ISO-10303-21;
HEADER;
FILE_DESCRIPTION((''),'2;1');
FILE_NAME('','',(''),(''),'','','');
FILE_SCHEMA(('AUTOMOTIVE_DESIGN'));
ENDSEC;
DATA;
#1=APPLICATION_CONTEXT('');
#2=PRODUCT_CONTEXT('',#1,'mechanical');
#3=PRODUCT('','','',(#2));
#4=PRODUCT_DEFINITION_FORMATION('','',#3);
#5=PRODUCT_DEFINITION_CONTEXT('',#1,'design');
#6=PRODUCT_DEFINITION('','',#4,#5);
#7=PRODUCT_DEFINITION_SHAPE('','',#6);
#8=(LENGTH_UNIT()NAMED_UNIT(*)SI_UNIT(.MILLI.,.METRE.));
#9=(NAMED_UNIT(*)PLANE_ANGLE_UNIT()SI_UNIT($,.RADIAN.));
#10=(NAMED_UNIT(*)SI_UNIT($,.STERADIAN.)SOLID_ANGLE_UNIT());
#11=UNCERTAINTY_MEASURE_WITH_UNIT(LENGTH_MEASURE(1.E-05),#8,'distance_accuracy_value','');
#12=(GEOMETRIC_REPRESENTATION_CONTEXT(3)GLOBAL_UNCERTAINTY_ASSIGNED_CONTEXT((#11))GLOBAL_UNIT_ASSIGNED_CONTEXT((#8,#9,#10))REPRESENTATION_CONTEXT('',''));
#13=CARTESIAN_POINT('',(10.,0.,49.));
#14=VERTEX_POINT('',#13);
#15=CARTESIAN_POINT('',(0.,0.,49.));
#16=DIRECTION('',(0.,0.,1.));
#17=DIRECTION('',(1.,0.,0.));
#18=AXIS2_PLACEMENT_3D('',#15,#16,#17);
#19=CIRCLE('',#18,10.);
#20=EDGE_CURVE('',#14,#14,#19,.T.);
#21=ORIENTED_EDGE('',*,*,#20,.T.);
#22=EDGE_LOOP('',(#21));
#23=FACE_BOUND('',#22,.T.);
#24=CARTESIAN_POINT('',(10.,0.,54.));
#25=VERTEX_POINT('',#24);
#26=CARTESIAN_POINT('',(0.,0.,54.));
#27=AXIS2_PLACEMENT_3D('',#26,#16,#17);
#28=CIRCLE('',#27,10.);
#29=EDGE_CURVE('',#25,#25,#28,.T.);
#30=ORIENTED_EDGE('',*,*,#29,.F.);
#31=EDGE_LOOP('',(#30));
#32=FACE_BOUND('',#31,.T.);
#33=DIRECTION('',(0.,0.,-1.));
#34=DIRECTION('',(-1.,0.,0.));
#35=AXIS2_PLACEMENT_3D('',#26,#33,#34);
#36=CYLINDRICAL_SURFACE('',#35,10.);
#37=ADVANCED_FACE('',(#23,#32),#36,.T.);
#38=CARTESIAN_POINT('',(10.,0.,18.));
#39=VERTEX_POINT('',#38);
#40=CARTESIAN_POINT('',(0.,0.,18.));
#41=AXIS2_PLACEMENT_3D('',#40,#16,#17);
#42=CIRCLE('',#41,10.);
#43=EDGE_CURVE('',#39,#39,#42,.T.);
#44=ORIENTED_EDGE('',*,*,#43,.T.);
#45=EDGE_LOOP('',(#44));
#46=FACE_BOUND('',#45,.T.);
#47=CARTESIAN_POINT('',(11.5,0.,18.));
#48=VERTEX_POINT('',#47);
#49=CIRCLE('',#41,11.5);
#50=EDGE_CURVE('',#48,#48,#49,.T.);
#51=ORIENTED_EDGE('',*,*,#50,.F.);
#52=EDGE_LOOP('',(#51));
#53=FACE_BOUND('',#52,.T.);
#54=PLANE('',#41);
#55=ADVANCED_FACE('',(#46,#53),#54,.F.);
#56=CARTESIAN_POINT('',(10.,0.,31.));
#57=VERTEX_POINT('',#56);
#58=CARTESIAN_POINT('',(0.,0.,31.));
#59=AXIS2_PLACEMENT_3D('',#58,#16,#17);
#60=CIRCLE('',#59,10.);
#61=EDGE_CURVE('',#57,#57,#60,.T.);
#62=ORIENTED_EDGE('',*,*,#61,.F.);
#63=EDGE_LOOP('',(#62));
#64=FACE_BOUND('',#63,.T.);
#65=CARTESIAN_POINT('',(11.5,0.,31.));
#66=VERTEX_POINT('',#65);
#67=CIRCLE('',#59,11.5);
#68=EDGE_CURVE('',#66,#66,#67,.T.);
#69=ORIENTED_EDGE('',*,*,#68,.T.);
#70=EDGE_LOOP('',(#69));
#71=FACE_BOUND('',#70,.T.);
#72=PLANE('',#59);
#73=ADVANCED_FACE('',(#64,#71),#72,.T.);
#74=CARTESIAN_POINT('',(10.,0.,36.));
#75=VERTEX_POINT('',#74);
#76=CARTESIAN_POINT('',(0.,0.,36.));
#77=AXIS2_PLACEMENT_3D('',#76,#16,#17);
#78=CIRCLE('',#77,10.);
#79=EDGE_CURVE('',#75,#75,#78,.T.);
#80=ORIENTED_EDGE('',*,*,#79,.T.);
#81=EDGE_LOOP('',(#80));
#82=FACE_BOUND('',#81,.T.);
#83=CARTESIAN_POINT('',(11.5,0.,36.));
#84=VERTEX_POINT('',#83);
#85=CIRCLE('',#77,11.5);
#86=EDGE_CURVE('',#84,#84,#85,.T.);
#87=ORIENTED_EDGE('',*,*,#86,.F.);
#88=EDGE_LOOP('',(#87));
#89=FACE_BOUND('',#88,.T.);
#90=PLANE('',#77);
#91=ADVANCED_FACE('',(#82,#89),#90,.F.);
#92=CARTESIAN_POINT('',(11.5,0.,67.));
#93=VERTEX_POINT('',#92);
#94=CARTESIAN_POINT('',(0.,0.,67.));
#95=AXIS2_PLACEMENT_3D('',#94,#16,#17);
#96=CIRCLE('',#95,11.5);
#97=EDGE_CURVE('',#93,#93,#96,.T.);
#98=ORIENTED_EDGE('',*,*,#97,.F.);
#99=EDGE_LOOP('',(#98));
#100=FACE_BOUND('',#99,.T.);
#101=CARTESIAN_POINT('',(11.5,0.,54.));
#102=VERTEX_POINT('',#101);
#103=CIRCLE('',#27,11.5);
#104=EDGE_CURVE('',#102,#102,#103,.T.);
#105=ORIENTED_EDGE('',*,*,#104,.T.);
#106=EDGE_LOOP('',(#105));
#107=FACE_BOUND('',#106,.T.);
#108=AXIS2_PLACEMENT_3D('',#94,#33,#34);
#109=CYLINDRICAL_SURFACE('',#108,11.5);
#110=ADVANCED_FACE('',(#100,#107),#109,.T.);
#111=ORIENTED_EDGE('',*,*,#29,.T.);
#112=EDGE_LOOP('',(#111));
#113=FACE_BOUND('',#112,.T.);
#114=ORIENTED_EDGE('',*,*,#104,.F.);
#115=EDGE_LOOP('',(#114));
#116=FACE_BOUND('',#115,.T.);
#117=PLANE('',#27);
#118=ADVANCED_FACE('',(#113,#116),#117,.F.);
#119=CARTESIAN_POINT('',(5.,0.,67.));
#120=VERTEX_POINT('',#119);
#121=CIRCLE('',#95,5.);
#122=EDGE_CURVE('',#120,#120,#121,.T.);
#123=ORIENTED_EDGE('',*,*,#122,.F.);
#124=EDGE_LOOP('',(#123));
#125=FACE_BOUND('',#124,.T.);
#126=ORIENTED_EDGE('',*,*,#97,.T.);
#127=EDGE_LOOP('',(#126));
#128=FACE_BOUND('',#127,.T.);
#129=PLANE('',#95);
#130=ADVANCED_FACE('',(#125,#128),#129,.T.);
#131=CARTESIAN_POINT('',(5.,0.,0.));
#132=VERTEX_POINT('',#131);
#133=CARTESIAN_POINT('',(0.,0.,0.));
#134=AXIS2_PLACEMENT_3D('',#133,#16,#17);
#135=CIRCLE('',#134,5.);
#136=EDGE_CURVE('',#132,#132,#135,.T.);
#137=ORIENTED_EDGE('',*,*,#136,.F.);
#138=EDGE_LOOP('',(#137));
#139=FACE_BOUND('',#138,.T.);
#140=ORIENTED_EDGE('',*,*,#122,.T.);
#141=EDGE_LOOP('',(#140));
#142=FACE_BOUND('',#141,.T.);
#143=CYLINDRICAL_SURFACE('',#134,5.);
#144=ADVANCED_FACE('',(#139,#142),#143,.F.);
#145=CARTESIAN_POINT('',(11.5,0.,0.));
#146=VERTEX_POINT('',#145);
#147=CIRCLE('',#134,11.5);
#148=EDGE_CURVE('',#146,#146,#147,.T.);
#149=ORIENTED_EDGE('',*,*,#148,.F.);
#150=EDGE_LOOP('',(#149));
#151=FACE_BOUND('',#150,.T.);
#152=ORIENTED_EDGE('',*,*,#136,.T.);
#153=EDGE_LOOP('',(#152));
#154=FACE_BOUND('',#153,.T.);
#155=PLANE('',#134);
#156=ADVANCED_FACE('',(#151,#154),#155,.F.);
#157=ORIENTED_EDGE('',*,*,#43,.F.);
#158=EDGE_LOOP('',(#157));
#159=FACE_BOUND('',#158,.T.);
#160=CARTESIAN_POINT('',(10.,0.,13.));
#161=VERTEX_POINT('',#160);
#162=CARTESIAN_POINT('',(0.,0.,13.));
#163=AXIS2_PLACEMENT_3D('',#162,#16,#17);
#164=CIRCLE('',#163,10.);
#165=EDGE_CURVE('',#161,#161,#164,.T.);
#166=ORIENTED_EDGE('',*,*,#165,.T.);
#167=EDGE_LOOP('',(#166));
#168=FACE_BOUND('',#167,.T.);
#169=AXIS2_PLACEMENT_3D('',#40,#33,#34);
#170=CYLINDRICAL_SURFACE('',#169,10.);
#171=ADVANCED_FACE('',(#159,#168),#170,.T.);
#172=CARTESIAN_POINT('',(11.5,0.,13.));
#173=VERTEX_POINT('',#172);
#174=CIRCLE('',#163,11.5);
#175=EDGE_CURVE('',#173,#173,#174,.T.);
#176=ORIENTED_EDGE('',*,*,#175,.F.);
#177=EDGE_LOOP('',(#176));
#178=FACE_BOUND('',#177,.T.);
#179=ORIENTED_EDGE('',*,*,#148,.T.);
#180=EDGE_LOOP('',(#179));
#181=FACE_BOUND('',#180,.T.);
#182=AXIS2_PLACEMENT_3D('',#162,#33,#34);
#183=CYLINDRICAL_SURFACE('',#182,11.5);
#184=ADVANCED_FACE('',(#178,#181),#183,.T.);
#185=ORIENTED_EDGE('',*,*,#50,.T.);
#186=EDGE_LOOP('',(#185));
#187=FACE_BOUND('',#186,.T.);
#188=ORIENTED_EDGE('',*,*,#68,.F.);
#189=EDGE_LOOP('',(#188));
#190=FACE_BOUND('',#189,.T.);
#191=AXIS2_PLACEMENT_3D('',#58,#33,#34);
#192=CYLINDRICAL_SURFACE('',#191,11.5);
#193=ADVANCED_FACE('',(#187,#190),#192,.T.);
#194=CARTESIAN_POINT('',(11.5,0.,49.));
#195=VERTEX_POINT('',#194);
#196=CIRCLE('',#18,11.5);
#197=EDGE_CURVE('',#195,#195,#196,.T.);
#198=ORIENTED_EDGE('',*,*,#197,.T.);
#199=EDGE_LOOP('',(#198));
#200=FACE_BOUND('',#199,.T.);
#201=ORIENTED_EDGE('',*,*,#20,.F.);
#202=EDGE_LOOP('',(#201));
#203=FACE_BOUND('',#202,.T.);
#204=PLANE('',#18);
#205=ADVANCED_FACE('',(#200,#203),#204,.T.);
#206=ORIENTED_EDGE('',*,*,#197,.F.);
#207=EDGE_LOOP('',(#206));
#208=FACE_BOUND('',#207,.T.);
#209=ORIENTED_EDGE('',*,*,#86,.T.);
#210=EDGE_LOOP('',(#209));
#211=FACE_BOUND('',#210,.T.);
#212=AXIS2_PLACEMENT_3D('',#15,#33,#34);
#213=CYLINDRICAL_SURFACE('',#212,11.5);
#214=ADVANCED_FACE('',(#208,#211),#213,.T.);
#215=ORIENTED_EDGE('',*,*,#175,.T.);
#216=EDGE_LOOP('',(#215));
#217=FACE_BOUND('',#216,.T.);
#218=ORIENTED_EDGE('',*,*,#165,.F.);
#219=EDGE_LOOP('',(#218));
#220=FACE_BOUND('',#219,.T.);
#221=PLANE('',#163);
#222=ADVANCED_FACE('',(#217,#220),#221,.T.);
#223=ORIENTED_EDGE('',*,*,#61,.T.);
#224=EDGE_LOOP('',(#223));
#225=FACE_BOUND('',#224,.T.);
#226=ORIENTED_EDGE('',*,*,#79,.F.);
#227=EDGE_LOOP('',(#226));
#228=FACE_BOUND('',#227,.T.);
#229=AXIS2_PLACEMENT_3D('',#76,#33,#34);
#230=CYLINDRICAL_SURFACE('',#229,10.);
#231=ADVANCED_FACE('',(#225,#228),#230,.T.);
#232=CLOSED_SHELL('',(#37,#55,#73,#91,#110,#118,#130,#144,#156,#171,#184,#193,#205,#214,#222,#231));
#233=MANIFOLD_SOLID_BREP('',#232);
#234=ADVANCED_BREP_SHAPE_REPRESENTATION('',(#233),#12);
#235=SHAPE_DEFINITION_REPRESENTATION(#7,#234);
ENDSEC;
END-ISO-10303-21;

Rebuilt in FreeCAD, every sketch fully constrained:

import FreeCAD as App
import Part
import Sketcher
from FreeCAD import Vector
Q = App.Units.Quantity

doc = App.newDocument("Part")
body = doc.addObject("PartDesign::Body", "Body")

# Sketch on XY plane
sketch1 = body.newObject("Sketcher::SketchObject", "Sketch")
sketch1.AttachmentSupport = (doc.getObject("XY_Plane"), [""])
sketch1.MapMode = "FlatFace"
sketch1.addGeometry(Part.Circle(Vector(0, 0, 0), Vector(0, 0, 1), 12), False)
sketch1.addConstraint([
    Sketcher.Constraint("Coincident", 0, 3, -1, 1),
    Sketcher.Constraint("Diameter", 0, Q("23 mm")),
])
pad1 = body.newObject("PartDesign::Pad", "Pad")
pad1.Profile = sketch1
pad1.Length = 13

# Sketch on XY plane
sketch2 = body.newObject("Sketcher::SketchObject", "Sketch001")
sketch2.AttachmentSupport = (doc.getObject("XY_Plane"), [""])
sketch2.MapMode = "FlatFace"
sketch2.AttachmentOffset = App.Placement(Vector(0, 0, 13), App.Rotation())
sketch2.addGeometry(Part.Circle(Vector(0, 0, 0), Vector(0, 0, 1), 10), False)
sketch2.addConstraint([
    Sketcher.Constraint("Coincident", 0, 3, -1, 1),
    Sketcher.Constraint("Diameter", 0, Q("20 mm")),
])
pad2 = body.newObject("PartDesign::Pad", "Pad001")
pad2.Profile = sketch2
pad2.Length = 5

# Sketch on XY plane
sketch3 = body.newObject("Sketcher::SketchObject", "Sketch002")
sketch3.AttachmentSupport = (doc.getObject("XY_Plane"), [""])
sketch3.MapMode = "FlatFace"
sketch3.AttachmentOffset = App.Placement(Vector(0, 0, 18), App.Rotation())
sketch3.addGeometry(Part.Circle(Vector(0, 0, 0), Vector(0, 0, 1), 12), False)
sketch3.addConstraint([
    Sketcher.Constraint("Coincident", 0, 3, -1, 1),
    Sketcher.Constraint("Diameter", 0, Q("23 mm")),
])
pad3 = body.newObject("PartDesign::Pad", "Pad002")
pad3.Profile = sketch3
pad3.Length = 13

# Sketch on XY plane
sketch4 = body.newObject("Sketcher::SketchObject", "Sketch003")
sketch4.AttachmentSupport = (doc.getObject("XY_Plane"), [""])
sketch4.MapMode = "FlatFace"
sketch4.AttachmentOffset = App.Placement(Vector(0, 0, 31), App.Rotation())
sketch4.addGeometry(Part.Circle(Vector(0, 0, 0), Vector(0, 0, 1), 10), False)
sketch4.addConstraint([
    Sketcher.Constraint("Coincident", 0, 3, -1, 1),
    Sketcher.Constraint("Diameter", 0, Q("20 mm")),
])
pad4 = body.newObject("PartDesign::Pad", "Pad003")
pad4.Profile = sketch4
pad4.Length = 5

# Sketch on XY plane
sketch5 = body.newObject("Sketcher::SketchObject", "Sketch004")
sketch5.AttachmentSupport = (doc.getObject("XY_Plane"), [""])
sketch5.MapMode = "FlatFace"
sketch5.AttachmentOffset = App.Placement(Vector(0, 0, 36), App.Rotation())
sketch5.addGeometry(Part.Circle(Vector(0, 0, 0), Vector(0, 0, 1), 12), False)
sketch5.addConstraint([
    Sketcher.Constraint("Coincident", 0, 3, -1, 1),
    Sketcher.Constraint("Diameter", 0, Q("23 mm")),
])
pad5 = body.newObject("PartDesign::Pad", "Pad004")
pad5.Profile = sketch5
pad5.Length = 13

# Sketch on XY plane
sketch6 = body.newObject("Sketcher::SketchObject", "Sketch005")
sketch6.AttachmentSupport = (doc.getObject("XY_Plane"), [""])
sketch6.MapMode = "FlatFace"
sketch6.AttachmentOffset = App.Placement(Vector(0, 0, 49), App.Rotation())
sketch6.addGeometry(Part.Circle(Vector(0, 0, 0), Vector(0, 0, 1), 10), False)
sketch6.addConstraint([
    Sketcher.Constraint("Coincident", 0, 3, -1, 1),
    Sketcher.Constraint("Diameter", 0, Q("20 mm")),
])
pad6 = body.newObject("PartDesign::Pad", "Pad005")
pad6.Profile = sketch6
pad6.Length = 5

# Sketch on XY plane
sketch7 = body.newObject("Sketcher::SketchObject", "Sketch006")
sketch7.AttachmentSupport = (doc.getObject("XY_Plane"), [""])
sketch7.MapMode = "FlatFace"
sketch7.AttachmentOffset = App.Placement(Vector(0, 0, 54), App.Rotation())
sketch7.addGeometry(Part.Circle(Vector(0, 0, 0), Vector(0, 0, 1), 12), False)
sketch7.addConstraint([
    Sketcher.Constraint("Coincident", 0, 3, -1, 1),
    Sketcher.Constraint("Diameter", 0, Q("23 mm")),
])
pad7 = body.newObject("PartDesign::Pad", "Pad006")
pad7.Profile = sketch7
pad7.Length = 13

# Sketch on XY plane
sketch8 = body.newObject("Sketcher::SketchObject", "Sketch007")
sketch8.AttachmentSupport = (doc.getObject("XY_Plane"), [""])
sketch8.MapMode = "FlatFace"
sketch8.AttachmentOffset = App.Placement(Vector(0, 0, 67), App.Rotation())
sketch8.addGeometry(Part.Circle(Vector(0, 0, 0), Vector(0, 0, 1), 5), False)
sketch8.addConstraint([
    Sketcher.Constraint("Coincident", 0, 3, -1, 1),
    Sketcher.Constraint("Diameter", 0, Q("10 mm")),
])
pocket1 = body.newObject("PartDesign::Pocket", "Pocket")
pocket1.Profile = sketch8
pocket1.Type = "ThroughAll"

doc.recompute()
